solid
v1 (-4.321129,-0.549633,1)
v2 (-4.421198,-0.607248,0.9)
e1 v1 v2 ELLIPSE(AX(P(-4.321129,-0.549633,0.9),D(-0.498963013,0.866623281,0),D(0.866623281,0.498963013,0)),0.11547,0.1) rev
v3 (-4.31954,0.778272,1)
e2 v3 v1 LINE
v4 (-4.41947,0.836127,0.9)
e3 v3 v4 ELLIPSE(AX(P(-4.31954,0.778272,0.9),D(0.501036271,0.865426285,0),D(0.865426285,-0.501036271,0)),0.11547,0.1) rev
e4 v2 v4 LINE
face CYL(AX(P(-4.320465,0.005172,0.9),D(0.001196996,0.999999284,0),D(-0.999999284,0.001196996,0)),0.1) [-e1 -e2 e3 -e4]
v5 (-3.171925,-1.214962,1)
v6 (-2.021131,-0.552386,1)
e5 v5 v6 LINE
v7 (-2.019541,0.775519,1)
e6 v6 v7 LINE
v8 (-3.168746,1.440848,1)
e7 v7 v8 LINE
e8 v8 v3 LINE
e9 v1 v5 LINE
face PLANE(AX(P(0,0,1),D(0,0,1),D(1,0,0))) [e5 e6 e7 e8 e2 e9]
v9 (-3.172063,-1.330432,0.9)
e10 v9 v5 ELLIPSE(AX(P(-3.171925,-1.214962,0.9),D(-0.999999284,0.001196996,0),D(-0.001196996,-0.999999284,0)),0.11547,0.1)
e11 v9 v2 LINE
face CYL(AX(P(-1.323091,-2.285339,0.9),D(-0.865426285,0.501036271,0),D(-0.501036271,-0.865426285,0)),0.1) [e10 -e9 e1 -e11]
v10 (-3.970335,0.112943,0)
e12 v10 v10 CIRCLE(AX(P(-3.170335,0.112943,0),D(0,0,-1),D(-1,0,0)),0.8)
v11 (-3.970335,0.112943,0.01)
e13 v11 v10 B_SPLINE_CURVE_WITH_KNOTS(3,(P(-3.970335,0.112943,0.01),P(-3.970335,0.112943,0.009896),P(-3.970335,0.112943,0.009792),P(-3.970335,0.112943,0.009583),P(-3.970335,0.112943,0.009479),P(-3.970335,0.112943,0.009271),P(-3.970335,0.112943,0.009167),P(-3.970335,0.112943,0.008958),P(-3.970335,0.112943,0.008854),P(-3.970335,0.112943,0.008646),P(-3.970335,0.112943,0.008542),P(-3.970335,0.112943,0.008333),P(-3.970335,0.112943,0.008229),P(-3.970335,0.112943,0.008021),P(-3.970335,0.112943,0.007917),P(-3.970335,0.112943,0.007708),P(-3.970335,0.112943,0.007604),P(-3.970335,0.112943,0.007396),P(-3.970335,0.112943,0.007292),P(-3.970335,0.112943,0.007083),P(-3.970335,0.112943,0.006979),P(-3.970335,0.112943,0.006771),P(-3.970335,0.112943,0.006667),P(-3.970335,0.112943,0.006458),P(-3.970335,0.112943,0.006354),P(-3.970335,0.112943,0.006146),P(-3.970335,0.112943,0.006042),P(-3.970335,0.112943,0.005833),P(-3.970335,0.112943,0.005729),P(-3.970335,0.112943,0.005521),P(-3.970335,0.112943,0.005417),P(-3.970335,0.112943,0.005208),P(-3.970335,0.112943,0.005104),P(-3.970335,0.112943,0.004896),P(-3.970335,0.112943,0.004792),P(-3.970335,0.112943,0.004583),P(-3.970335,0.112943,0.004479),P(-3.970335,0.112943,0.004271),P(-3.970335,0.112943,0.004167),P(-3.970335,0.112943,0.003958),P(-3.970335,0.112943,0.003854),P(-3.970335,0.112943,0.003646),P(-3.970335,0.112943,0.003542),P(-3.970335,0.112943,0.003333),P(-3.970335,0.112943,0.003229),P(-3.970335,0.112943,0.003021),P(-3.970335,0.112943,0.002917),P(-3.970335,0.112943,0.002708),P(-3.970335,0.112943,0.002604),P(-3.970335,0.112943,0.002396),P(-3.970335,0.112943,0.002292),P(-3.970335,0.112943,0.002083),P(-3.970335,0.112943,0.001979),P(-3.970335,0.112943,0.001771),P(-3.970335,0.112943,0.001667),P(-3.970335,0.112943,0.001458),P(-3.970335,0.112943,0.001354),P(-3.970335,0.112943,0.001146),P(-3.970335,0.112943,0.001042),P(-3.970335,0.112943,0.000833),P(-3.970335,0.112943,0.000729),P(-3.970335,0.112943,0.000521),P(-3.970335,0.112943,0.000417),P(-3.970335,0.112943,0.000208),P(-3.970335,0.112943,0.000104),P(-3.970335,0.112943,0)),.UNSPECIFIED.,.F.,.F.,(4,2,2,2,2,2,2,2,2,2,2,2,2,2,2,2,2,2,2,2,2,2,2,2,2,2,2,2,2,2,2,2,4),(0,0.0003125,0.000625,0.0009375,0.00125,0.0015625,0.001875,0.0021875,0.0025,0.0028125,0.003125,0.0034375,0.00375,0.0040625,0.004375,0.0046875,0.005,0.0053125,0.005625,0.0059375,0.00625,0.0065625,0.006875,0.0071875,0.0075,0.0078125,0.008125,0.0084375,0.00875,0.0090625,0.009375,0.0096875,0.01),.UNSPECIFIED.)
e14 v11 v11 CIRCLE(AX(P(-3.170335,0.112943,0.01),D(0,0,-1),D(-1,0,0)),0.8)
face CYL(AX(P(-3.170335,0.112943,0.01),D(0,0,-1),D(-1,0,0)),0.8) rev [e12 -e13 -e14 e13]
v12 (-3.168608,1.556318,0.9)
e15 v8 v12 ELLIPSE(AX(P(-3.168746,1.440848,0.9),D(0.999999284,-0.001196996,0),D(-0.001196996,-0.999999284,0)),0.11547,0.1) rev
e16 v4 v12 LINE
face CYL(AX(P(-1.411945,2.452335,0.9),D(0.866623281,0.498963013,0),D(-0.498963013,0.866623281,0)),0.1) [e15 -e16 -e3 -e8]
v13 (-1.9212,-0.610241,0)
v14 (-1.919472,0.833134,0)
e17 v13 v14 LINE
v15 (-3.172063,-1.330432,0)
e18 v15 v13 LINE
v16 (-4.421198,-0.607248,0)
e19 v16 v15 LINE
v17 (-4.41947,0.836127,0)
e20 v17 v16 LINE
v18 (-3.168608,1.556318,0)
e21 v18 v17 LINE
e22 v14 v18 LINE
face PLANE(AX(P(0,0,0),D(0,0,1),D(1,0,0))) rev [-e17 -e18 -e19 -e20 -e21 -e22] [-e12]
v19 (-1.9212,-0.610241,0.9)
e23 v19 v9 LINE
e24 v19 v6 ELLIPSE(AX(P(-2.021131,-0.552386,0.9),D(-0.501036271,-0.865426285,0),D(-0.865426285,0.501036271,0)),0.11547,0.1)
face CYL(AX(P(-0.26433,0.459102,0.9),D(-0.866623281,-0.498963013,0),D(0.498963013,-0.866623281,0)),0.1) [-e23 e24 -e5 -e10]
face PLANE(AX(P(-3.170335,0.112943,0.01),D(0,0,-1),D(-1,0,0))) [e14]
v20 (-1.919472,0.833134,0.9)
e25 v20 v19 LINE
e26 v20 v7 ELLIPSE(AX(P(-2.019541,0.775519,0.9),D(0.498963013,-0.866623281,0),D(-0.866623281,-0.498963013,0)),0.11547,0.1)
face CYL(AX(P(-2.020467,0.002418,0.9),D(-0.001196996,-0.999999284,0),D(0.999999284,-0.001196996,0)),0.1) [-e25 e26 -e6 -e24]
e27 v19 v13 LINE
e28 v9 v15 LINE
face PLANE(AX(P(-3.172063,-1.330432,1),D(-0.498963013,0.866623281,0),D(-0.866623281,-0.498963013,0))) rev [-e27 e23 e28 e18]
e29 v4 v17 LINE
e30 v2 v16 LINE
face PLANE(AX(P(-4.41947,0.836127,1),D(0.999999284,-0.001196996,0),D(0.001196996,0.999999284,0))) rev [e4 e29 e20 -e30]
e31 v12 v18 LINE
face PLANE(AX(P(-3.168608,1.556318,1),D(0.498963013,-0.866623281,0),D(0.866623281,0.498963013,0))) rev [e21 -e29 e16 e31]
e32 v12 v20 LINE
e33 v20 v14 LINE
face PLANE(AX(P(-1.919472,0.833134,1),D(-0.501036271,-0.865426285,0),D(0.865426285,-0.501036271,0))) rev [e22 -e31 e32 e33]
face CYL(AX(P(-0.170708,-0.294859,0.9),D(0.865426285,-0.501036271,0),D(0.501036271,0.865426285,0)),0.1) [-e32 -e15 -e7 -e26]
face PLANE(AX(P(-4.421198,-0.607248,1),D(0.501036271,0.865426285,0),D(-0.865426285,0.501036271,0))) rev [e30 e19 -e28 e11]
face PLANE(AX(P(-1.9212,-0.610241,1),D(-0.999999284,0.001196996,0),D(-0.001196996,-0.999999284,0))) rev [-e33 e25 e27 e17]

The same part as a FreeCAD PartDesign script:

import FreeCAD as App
import Part
import Sketcher
from FreeCAD import Vector
Q = App.Units.Quantity


def edges_at(feature, points):
    """Names of the edges that pass closest to the given points."""
    edges = feature.Shape.Edges
    near = lambda p: min(range(len(edges)), key=lambda i: edges[i].distToShape(Part.Vertex(*p))[0])
    return sorted({f"Edge{near(p) + 1}" for p in points})


def add_polygon(sketch, points):
    """Adds a closed chain of lines whose ends are joined by coincident constraints."""
    first, n = sketch.GeometryCount, len(points)
    for a, b in zip(points, points[1:] + points[:1]):
        sketch.addGeometry(Part.LineSegment(App.Vector(*a, 0), App.Vector(*b, 0)), False)
    for i in range(n):
        sketch.addConstraint(Sketcher.Constraint("Coincident", first + i, 2, first + (i + 1) % n, 1))

doc = App.newDocument("Part")
body = doc.addObject("PartDesign::Body", "Body")

sketch1 = body.newObject("Sketcher::SketchObject", "Sketch")
sketch1.AttachmentSupport = (doc.getObject("XY_Plane"), [""])
sketch1.MapMode = "FlatFace"
add_polygon(sketch1, [(-1.9212, -0.610241), (-1.919472, 0.833134), (-3.168608, 1.556318), (-4.41947, 0.836127), (-4.421198, -0.607248), (-3.172063, -1.330432)])
sketch1.addConstraint([
    Sketcher.Constraint("Parallel", 0, 3),
    Sketcher.Constraint("Parallel", 1, 4),
    Sketcher.Constraint("Parallel", 2, 5),
    Sketcher.Constraint("Equal", 0, 1),
    Sketcher.Constraint("Equal", 1, 2),
    Sketcher.Constraint("Equal", 2, 3),
    Sketcher.Constraint("DistanceX", 2, 2, 0, 2, Q("2.499998 mm")),
    Sketcher.Constraint("DistanceX", 3, 2, -1, 1, Q("4.421198 mm")),
    Sketcher.Constraint("DistanceX", 2, 2, -1, 1, Q("4.41947 mm")),
    Sketcher.Constraint("DistanceY", 3, 2, -1, 1, Q("0.607248 mm")),
    Sketcher.Constraint("DistanceY", 4, 2, -1, 1, Q("1.330432 mm")),
    Sketcher.Constraint("DistanceY", 5, 2, -1, 1, Q("0.610241 mm")),
])
pad1 = body.newObject("PartDesign::Pad", "Pad")
pad1.Profile = sketch1
pad1.Length = 1
doc.recompute()

fillet = body.newObject("PartDesign::Fillet", "Fillet")
fillet.Base = (pad1, edges_at(pad1, [
    (-2.544, 1.195, 1),
    (-3.794, 1.196, 1),
    (-4.42, 0.114, 1),
    (-3.797, -0.969, 1),
    (-2.547, -0.97, 1),
    (-1.92, 0.111, 1),
]))
fillet.Radius = 0.1

sketch2 = body.newObject("Sketcher::SketchObject", "Sketch001")
sketch2.AttachmentSupport = (doc.getObject("XY_Plane"), [""])
sketch2.MapMode = "FlatFace"
sketch2.addGeometry(Part.Circle(Vector(-3.170335, 0.112943, 0), Vector(0, 0, 1), 0.8), False)
sketch2.addConstraint([
    Sketcher.Constraint("Diameter", 0, Q("1.6 mm")),
    Sketcher.Constraint("DistanceX", 0, 3, -1, 1, Q("3.170335 mm")),
    Sketcher.Constraint("DistanceY", -1, 1, 0, 3, Q("0.112943 mm")),
])
pocket1 = body.newObject("PartDesign::Pocket", "Pocket")
pocket1.Profile = sketch2
pocket1.Length = 0.01
pocket1.Reversed = True

doc.recompute()
